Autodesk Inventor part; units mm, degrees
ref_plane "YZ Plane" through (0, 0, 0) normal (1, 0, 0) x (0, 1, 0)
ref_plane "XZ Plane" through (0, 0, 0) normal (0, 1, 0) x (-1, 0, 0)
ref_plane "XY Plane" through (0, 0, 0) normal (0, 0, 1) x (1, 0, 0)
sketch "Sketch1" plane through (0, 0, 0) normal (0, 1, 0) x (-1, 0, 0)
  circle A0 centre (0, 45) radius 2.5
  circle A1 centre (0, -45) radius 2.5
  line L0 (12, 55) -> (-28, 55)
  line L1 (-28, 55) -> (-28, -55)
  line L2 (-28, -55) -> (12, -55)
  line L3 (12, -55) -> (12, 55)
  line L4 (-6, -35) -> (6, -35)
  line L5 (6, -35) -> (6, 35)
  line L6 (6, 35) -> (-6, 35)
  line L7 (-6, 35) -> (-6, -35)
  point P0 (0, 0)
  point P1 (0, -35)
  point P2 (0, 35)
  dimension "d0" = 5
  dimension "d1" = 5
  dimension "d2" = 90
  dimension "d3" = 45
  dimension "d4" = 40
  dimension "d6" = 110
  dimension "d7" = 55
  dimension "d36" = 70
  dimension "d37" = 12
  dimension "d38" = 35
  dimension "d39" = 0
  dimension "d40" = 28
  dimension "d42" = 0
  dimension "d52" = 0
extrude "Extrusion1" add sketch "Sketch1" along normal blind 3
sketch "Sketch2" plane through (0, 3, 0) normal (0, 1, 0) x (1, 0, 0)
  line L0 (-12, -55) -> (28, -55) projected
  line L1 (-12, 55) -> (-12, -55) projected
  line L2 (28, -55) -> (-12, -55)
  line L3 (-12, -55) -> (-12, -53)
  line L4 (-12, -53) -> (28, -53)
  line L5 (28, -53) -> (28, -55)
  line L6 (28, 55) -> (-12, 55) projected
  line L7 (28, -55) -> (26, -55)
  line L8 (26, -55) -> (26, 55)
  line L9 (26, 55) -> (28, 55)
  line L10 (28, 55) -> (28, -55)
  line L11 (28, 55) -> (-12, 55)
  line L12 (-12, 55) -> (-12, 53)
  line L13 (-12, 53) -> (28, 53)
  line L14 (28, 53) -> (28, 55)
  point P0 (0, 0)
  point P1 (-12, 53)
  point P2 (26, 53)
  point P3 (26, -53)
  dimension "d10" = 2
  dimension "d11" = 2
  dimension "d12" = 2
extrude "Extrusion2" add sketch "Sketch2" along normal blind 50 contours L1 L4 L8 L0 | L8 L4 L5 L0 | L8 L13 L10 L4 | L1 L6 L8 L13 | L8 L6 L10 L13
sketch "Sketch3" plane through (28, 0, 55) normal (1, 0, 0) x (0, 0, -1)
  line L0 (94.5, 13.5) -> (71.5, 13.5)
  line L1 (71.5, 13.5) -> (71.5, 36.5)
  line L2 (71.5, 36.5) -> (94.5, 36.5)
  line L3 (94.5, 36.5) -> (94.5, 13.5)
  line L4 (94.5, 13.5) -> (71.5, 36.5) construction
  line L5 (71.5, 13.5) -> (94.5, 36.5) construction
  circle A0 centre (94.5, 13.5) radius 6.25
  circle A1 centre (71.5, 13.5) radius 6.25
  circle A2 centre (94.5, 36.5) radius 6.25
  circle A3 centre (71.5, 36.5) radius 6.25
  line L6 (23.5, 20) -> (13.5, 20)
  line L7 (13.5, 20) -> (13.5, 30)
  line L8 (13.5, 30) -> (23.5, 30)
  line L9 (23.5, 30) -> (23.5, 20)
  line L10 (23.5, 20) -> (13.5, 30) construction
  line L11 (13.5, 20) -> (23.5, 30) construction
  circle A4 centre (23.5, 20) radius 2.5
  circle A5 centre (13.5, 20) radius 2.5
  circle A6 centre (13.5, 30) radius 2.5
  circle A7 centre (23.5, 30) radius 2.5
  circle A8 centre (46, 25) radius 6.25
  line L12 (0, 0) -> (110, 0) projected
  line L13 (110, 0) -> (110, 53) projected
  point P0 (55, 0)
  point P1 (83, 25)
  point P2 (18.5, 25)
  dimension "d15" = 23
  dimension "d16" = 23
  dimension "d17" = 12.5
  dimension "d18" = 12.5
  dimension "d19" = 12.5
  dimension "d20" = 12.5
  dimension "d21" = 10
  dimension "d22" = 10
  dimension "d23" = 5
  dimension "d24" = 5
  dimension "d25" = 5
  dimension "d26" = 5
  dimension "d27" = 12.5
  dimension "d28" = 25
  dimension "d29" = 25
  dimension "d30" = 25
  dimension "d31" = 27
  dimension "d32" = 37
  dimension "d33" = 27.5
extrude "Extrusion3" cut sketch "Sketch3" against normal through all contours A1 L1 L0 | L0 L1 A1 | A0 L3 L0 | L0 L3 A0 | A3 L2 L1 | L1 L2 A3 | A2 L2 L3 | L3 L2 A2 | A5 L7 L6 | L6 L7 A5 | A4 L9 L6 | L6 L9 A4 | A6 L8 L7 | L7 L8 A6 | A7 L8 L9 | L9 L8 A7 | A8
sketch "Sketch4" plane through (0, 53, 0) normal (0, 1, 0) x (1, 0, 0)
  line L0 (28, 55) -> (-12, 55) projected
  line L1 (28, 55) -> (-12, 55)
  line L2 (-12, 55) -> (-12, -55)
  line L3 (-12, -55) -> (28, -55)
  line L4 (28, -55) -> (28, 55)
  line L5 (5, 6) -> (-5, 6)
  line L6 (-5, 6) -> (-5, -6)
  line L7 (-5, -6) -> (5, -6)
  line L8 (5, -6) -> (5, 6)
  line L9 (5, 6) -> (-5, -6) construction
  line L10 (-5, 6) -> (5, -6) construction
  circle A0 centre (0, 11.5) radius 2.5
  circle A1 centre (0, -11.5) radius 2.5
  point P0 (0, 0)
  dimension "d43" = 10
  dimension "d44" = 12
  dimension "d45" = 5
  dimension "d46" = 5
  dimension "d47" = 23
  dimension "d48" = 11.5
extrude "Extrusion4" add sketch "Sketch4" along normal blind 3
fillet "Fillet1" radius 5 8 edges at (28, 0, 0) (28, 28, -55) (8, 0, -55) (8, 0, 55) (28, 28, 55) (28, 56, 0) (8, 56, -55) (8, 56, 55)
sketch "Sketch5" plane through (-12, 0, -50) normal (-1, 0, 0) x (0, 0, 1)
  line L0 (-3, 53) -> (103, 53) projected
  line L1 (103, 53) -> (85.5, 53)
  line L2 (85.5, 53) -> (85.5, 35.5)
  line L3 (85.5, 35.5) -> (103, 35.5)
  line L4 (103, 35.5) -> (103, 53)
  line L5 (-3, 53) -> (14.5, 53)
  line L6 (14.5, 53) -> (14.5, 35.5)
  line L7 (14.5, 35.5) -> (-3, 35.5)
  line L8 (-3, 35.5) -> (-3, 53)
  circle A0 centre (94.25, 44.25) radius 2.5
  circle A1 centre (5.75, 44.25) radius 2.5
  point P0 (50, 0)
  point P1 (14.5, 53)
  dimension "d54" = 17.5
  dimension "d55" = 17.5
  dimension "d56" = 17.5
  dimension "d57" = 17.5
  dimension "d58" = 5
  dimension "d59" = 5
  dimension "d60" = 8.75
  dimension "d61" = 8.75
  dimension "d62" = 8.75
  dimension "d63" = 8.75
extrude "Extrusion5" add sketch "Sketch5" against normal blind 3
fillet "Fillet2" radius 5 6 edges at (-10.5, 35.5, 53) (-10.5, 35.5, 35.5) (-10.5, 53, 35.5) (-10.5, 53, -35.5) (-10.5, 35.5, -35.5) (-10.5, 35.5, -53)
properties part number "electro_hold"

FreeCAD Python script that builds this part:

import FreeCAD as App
import Part
import Sketcher

V = App.Vector


def edges_at(feature, points):
    """Names of the edges that pass closest to the given points."""
    edges = feature.Shape.Edges
    near = lambda p: min(range(len(edges)), key=lambda i: edges[i].distToShape(Part.Vertex(*p))[0])
    return sorted({f"Edge{near(p) + 1}" for p in points})

doc = App.newDocument("Part")
body = doc.addObject("PartDesign::Body", "Body")

# Sketch on XZ plane
sketch1 = body.newObject("Sketcher::SketchObject", "Sketch")
sketch1.AttachmentSupport = (doc.getObject("XZ_Plane"), [""])
sketch1.MapMode = "FlatFace"
sketch1.addGeometry(Part.LineSegment(V(-12, -55, 0), V(-12, 55, 0)), False)
sketch1.addGeometry(Part.LineSegment(V(-12, 55, 0), V(28, 55, 0)), False)
sketch1.addGeometry(Part.LineSegment(V(28, 55, 0), V(28, -55, 0)), False)
sketch1.addGeometry(Part.LineSegment(V(28, -55, 0), V(-12, -55, 0)), False)
sketch1.addGeometry(Part.Circle(V(0, -45, 0), V(0, 0, 1), 2.5), False)
sketch1.addGeometry(Part.LineSegment(V(-6, -35, 0), V(6, -35, 0)), False)
sketch1.addGeometry(Part.LineSegment(V(6, -35, 0), V(6, 35, 0)), False)
sketch1.addGeometry(Part.LineSegment(V(6, 35, 0), V(-6, 35, 0)), False)
sketch1.addGeometry(Part.LineSegment(V(-6, 35, 0), V(-6, -35, 0)), False)
sketch1.addGeometry(Part.Circle(V(0, 45, 0), V(0, 0, 1), 2.5), False)
sketch1.addConstraint(Sketcher.Constraint("Coincident", 0, 2, 1, 1))
sketch1.addConstraint(Sketcher.Constraint("Coincident", 1, 2, 2, 1))
sketch1.addConstraint(Sketcher.Constraint("Coincident", 2, 2, 3, 1))
sketch1.addConstraint(Sketcher.Constraint("Coincident", 3, 2, 0, 1))
sketch1.addConstraint(Sketcher.Constraint("Coincident", 5, 2, 6, 1))
sketch1.addConstraint(Sketcher.Constraint("Coincident", 6, 2, 7, 1))
sketch1.addConstraint(Sketcher.Constraint("Coincident", 7, 2, 8, 1))
sketch1.addConstraint(Sketcher.Constraint("Coincident", 8, 2, 5, 1))
sketch1.addConstraint(Sketcher.Constraint("Vertical", 0))
sketch1.addConstraint(Sketcher.Constraint("Horizontal", 1))
sketch1.addConstraint(Sketcher.Constraint("Vertical", 2))
sketch1.addConstraint(Sketcher.Constraint("Horizontal", 3))
sketch1.addConstraint(Sketcher.Constraint("Horizontal", 5))
sketch1.addConstraint(Sketcher.Constraint("Vertical", 6))
sketch1.addConstraint(Sketcher.Constraint("Horizontal", 7))
sketch1.addConstraint(Sketcher.Constraint("Vertical", 8))
sketch1.addConstraint(Sketcher.Constraint("Equal", 4, 9))
sketch1.addConstraint(Sketcher.Constraint("Symmetric", 4, 3, 9, 3, -1, 1))
sketch1.addConstraint(Sketcher.Constraint("Symmetric", 5, 2, 7, 2, -1, 1))
sketch1.addConstraint(Sketcher.Constraint("PointOnObject", 4, 3, -2))
sketch1.addConstraint(Sketcher.Constraint("Diameter", 4, 5.0))
sketch1.addConstraint(Sketcher.Constraint("DistanceX", 1, 1, 1, 2, 40.0))
sketch1.addConstraint(Sketcher.Constraint("DistanceX", 5, 1, 5, 2, 12.0))
sketch1.addConstraint(Sketcher.Constraint("DistanceY", 0, 1, 0, 2, 110.0))
sketch1.addConstraint(Sketcher.Constraint("DistanceY", 6, 1, 6, 2, 70.0))
sketch1.addConstraint(Sketcher.Constraint("DistanceY", 4, 3, -1, 1, 45.0))
sketch1.addConstraint(Sketcher.Constraint("DistanceX", 0, 2, -1, 1, 12.0))
sketch1.addConstraint(Sketcher.Constraint("DistanceY", -1, 1, 0, 2, 55.0))
pad1 = body.newObject("PartDesign::Pad", "Pad")
pad1.Profile = sketch1
pad1.Length = 3
pad1.Reversed = True

# Sketch on XZ plane
sketch2 = body.newObject("Sketcher::SketchObject", "Sketch001")
sketch2.AttachmentSupport = (doc.getObject("XZ_Plane"), [""])
sketch2.MapMode = "FlatFace"
sketch2.AttachmentOffset = App.Placement(V(0, 0, -3), App.Rotation())
sketch2.addGeometry(Part.LineSegment(V(-12, 53, 0), V(-12, 55, 0)), False)
sketch2.addGeometry(Part.LineSegment(V(-12, 55, 0), V(28, 55, 0)), False)
sketch2.addGeometry(Part.LineSegment(V(28, 55, 0), V(28, -55, 0)), False)
sketch2.addGeometry(Part.LineSegment(V(28, -55, 0), V(-12, -55, 0)), False)
sketch2.addGeometry(Part.LineSegment(V(-12, -55, 0), V(-12, -53, 0)), False)
sketch2.addGeometry(Part.LineSegment(V(-12, -53, 0), V(26, -53, 0)), False)
sketch2.addGeometry(Part.LineSegment(V(26, -53, 0), V(26, 53, 0)), False)
sketch2.addGeometry(Part.LineSegment(V(26, 53, 0), V(-12, 53, 0)), False)
sketch2.addConstraint(Sketcher.Constraint("Coincident", 0, 2, 1, 1))
sketch2.addConstraint(Sketcher.Constraint("Coincident", 1, 2, 2, 1))
sketch2.addConstraint(Sketcher.Constraint("Coincident", 2, 2, 3, 1))
sketch2.addConstraint(Sketcher.Constraint("Coincident", 3, 2, 4, 1))
sketch2.addConstraint(Sketcher.Constraint("Coincident", 4, 2, 5, 1))
sketch2.addConstraint(Sketcher.Constraint("Coincident", 5, 2, 6, 1))
sketch2.addConstraint(Sketcher.Constraint("Coincident", 6, 2, 7, 1))
sketch2.addConstraint(Sketcher.Constraint("Coincident", 7, 2, 0, 1))
sketch2.addConstraint(Sketcher.Constraint("Vertical", 0))
sketch2.addConstraint(Sketcher.Constraint("Horizontal", 1))
sketch2.addConstraint(Sketcher.Constraint("Vertical", 2))
sketch2.addConstraint(Sketcher.Constraint("Horizontal", 3))
sketch2.addConstraint(Sketcher.Constraint("Vertical", 4))
sketch2.addConstraint(Sketcher.Constraint("Horizontal", 5))
sketch2.addConstraint(Sketcher.Constraint("Vertical", 6))
sketch2.addConstraint(Sketcher.Constraint("Horizontal", 7))
sketch2.addConstraint(Sketcher.Constraint("Symmetric", 0, 2, 3, 2, -1))
sketch2.addConstraint(Sketcher.Constraint("Equal", 0, 4))
sketch2.addConstraint(Sketcher.Constraint("DistanceY", 0, 1, 0, 2, 2.0))
sketch2.addConstraint(Sketcher.Constraint("DistanceX", 5, 2, 2, 2, 2.0))
sketch2.addConstraint(Sketcher.Constraint("DistanceX", 1, 1, 1, 2, 40.0))
sketch2.addConstraint(Sketcher.Constraint("DistanceY", 2, 2, 2, 1, 110.0))
sketch2.addConstraint(Sketcher.Constraint("DistanceX", 0, 2, -1, 1, 12.0))
pad2 = body.newObject("PartDesign::Pad", "Pad001")
pad2.Profile = sketch2
pad2.Length = 50
pad2.Reversed = True

# Sketch on YZ plane
sketch3 = body.newObject("Sketcher::SketchObject", "Sketch002")
sketch3.AttachmentSupport = (doc.getObject("YZ_Plane"), [""])
sketch3.MapMode = "FlatFace"
sketch3.AttachmentOffset = App.Placement(V(0, 0, 28), App.Rotation())
sketch3.addGeometry(Part.Circle(V(13.5, -16.5, 0), V(0, 0, 1), 6.2), False)
sketch3.addGeometry(Part.Circle(V(13.5, -39.5, 0), V(0, 0, 1), 6.2), False)
sketch3.addGeometry(Part.Circle(V(36.5, -16.5, 0), V(0, 0, 1), 6.2), False)
sketch3.addGeometry(Part.Circle(V(36.5, -39.5, 0), V(0, 0, 1), 6.2), False)
sketch3.addGeometry(Part.Circle(V(20, 41.5, 0), V(0, 0, 1), 2.5), False)
sketch3.addGeometry(Part.Circle(V(20, 31.5, 0), V(0, 0, 1), 2.5), False)
sketch3.addGeometry(Part.Circle(V(30, 41.5, 0), V(0, 0, 1), 2.5), False)
sketch3.addGeometry(Part.Circle(V(30, 31.5, 0), V(0, 0, 1), 2.5), False)
sketch3.addGeometry(Part.Circle(V(25, 9, 0), V(0, 0, 1), 6.2), False)
sketch3.addConstraint(Sketcher.Constraint("Equal", 0, 1))
sketch3.addConstraint(Sketcher.Constraint("Equal", 1, 2))
sketch3.addConstraint(Sketcher.Constraint("Equal", 2, 3))
sketch3.addConstraint(Sketcher.Constraint("Equal", 4, 5))
sketch3.addConstraint(Sketcher.Constraint("Equal", 5, 6))
sketch3.addConstraint(Sketcher.Constraint("Equal", 6, 7))
sketch3.addConstraint(Sketcher.Constraint("Equal", 3, 8))
sketch3.addConstraint(Sketcher.Constraint("Horizontal", 0, 3, 2, 3))
sketch3.addConstraint(Sketcher.Constraint("Horizontal", 1, 3, 3, 3))
sketch3.addConstraint(Sketcher.Constraint("Horizontal", 4, 3, 6, 3))
sketch3.addConstraint(Sketcher.Constraint("Horizontal", 5, 3, 7, 3))
sketch3.addConstraint(Sketcher.Constraint("Vertical", 0, 3, 1, 3))
sketch3.addConstraint(Sketcher.Constraint("Vertical", 2, 3, 3, 3))
sketch3.addConstraint(Sketcher.Constraint("Vertical", 4, 3, 5, 3))
sketch3.addConstraint(Sketcher.Constraint("Vertical", 6, 3, 7, 3))
sketch3.addConstraint(Sketcher.Constraint("Diameter", 4, 5.0))
sketch3.addConstraint(Sketcher.Constraint("Diameter", 0, 12.5))
sketch3.addConstraint(Sketcher.Constraint("DistanceX", -1, 1, 8, 3, 25.0))
sketch3.addConstraint(Sketcher.Constraint("DistanceY", 1, 3, 0, 3, 23.0))
sketch3.addConstraint(Sketcher.Constraint("DistanceX", 0, 3, 2, 3, 23.0))
sketch3.addConstraint(Sketcher.Constraint("DistanceY", 5, 3, 4, 3, 10.0))
sketch3.addConstraint(Sketcher.Constraint("DistanceX", 4, 3, 6, 3, 10.0))
sketch3.addConstraint(Sketcher.Constraint("DistanceX", 5, 3, 8, 3, 5.0))
sketch3.addConstraint(Sketcher.Constraint("DistanceY", -1, 1, 8, 3, 9.0))
sketch3.addConstraint(Sketcher.Constraint("DistanceY", 0, 3, 4, 3, 58.0))
sketch3.addConstraint(Sketcher.Constraint("DistanceX", -1, 1, 0, 3, 13.5))
sketch3.addConstraint(Sketcher.Constraint("DistanceY", 0, 3, -1, 1, 16.5))
pocket1 = body.newObject("PartDesign::Pocket", "Pocket")
pocket1.Profile = sketch3
pocket1.Type = "ThroughAll"

# Sketch on XZ plane
sketch4 = body.newObject("Sketcher::SketchObject", "Sketch003")
sketch4.AttachmentSupport = (doc.getObject("XZ_Plane"), [""])
sketch4.MapMode = "FlatFace"
sketch4.AttachmentOffset = App.Placement(V(0, 0, -53), App.Rotation())
sketch4.addGeometry(Part.LineSegment(V(28, 55, 0), V(28, -55, 0)), False)
sketch4.addGeometry(Part.LineSegment(V(28, -55, 0), V(-12, -55, 0)), False)
sketch4.addGeometry(Part.LineSegment(V(-12, -55, 0), V(-12, 55, 0)), False)
sketch4.addGeometry(Part.LineSegment(V(-12, 55, 0), V(28, 55, 0)), False)
sketch4.addGeometry(Part.Circle(V(0, 11.5, 0), V(0, 0, 1), 2.5), False)
sketch4.addGeometry(Part.LineSegment(V(-5, -6, 0), V(5, -6, 0)), False)
sketch4.addGeometry(Part.LineSegment(V(5, -6, 0), V(5, 6, 0)), False)
sketch4.addGeometry(Part.LineSegment(V(5, 6, 0), V(-5, 6, 0)), False)
sketch4.addGeometry(Part.LineSegment(V(-5, 6, 0), V(-5, -6, 0)), False)
sketch4.addGeometry(Part.Circle(V(0, -11.5, 0), V(0, 0, 1), 2.5), False)
sketch4.addConstraint(Sketcher.Constraint("Coincident", 0, 2, 1, 1))
sketch4.addConstraint(Sketcher.Constraint("Coincident", 1, 2, 2, 1))
sketch4.addConstraint(Sketcher.Constraint("Coincident", 2, 2, 3, 1))
sketch4.addConstraint(Sketcher.Constraint("Coincident", 3, 2, 0, 1))
sketch4.addConstraint(Sketcher.Constraint("Coincident", 5, 2, 6, 1))
sketch4.addConstraint(Sketcher.Constraint("Coincident", 6, 2, 7, 1))
sketch4.addConstraint(Sketcher.Constraint("Coincident", 7, 2, 8, 1))
sketch4.addConstraint(Sketcher.Constraint("Coincident", 8, 2, 5, 1))
sketch4.addConstraint(Sketcher.Constraint("Vertical", 0))
sketch4.addConstraint(Sketcher.Constraint("Horizontal", 1))
sketch4.addConstraint(Sketcher.Constraint("Vertical", 2))
sketch4.addConstraint(Sketcher.Constraint("Horizontal", 3))
sketch4.addConstraint(Sketcher.Constraint("Horizontal", 5))
sketch4.addConstraint(Sketcher.Constraint("Vertical", 6))
sketch4.addConstraint(Sketcher.Constraint("Horizontal", 7))
sketch4.addConstraint(Sketcher.Constraint("Vertical", 8))
sketch4.addConstraint(Sketcher.Constraint("Equal", 4, 9))
sketch4.addConstraint(Sketcher.Constraint("Symmetric", 4, 3, 9, 3, -1, 1))
sketch4.addConstraint(Sketcher.Constraint("Symmetric", 5, 2, 7, 2, -1, 1))
sketch4.addConstraint(Sketcher.Constraint("PointOnObject", 4, 3, -2))
sketch4.addConstraint(Sketcher.Constraint("Diameter", 4, 5.0))
sketch4.addConstraint(Sketcher.Constraint("DistanceX", 5, 1, 5, 2, 10.0))
sketch4.addConstraint(Sketcher.Constraint("DistanceY", 6, 1, 6, 2, 12.0))
sketch4.addConstraint(Sketcher.Constraint("DistanceX", 1, 2, -1, 1, 12.0))
sketch4.addConstraint(Sketcher.Constraint("DistanceY", 9, 3, 4, 3, 23.0))
sketch4.addConstraint(Sketcher.Constraint("DistanceX", 5, 2, 0, 2, 23.0))
sketch4.addConstraint(Sketcher.Constraint("DistanceY", 0, 2, 0, 1, 110.0))
sketch4.addConstraint(Sketcher.Constraint("DistanceY", 0, 2, -1, 1, 55.0))
pad3 = body.newObject("PartDesign::Pad", "Pad002")
pad3.Profile = sketch4
pad3.Length = 3
pad3.Reversed = True
doc.recompute()

fillet = body.newObject("PartDesign::Fillet", "Fillet")
fillet.Base = (pad3, edges_at(pad3, [
    (28, 0, 0),
    (28, 28, -55),
    (8, 0, -55),
    (8, 0, 55),
    (28, 28, 55),
    (28, 56, 0),
    (8, 56, -55),
    (8, 56, 55),
]))
fillet.Radius = 5

# Sketch on YZ plane
sketch5 = body.newObject("Sketcher::SketchObject", "Sketch004")
sketch5.AttachmentSupport = (doc.getObject("YZ_Plane"), [""])
sketch5.MapMode = "FlatFace"
sketch5.AttachmentOffset = App.Placement(V(0, 0, -12), App.Rotation())
sketch5.addGeometry(Part.LineSegment(V(53, 53, 0), V(53, 35.5, 0)), False)
sketch5.addGeometry(Part.LineSegment(V(53, 35.5, 0), V(35.5, 35.5, 0)), False)
sketch5.addGeometry(Part.LineSegment(V(35.5, 35.5, 0), V(35.5, 53, 0)), False)
sketch5.addGeometry(Part.LineSegment(V(35.5, 53, 0), V(53, 53, 0)), False)
sketch5.addGeometry(Part.Circle(V(44.2, 44.2, 0), V(0, 0, 1), 2.5), False)
sketch5.addGeometry(Part.LineSegment(V(53, -35.5, 0), V(53, -53, 0)), False)
sketch5.addGeometry(Part.LineSegment(V(53, -53, 0), V(35.5, -53, 0)), False)
sketch5.addGeometry(Part.LineSegment(V(35.5, -53, 0), V(35.5, -35.5, 0)), False)
sketch5.addGeometry(Part.LineSegment(V(35.5, -35.5, 0), V(53, -35.5, 0)), False)
sketch5.addGeometry(Part.Circle(V(44.2, -44.2, 0), V(0, 0, 1), 2.5), False)
sketch5.addConstraint(Sketcher.Constraint("Coincident", 0, 2, 1, 1))
sketch5.addConstraint(Sketcher.Constraint("Coincident", 1, 2, 2, 1))
sketch5.addConstraint(Sketcher.Constraint("Coincident", 2, 2, 3, 1))
sketch5.addConstraint(Sketcher.Constraint("Coincident", 3, 2, 0, 1))
sketch5.addConstraint(Sketcher.Constraint("Coincident", 5, 2, 6, 1))
sketch5.addConstraint(Sketcher.Constraint("Coincident", 6, 2, 7, 1))
sketch5.addConstraint(Sketcher.Constraint("Coincident", 7, 2, 8, 1))
sketch5.addConstraint(Sketcher.Constraint("Coincident", 8, 2, 5, 1))
sketch5.addConstraint(Sketcher.Constraint("Vertical", 0))
sketch5.addConstraint(Sketcher.Constraint("Horizontal", 1))
sketch5.addConstraint(Sketcher.Constraint("Vertical", 2))
sketch5.addConstraint(Sketcher.Constraint("Horizontal", 3))
sketch5.addConstraint(Sketcher.Constraint("Vertical", 5))
sketch5.addConstraint(Sketcher.Constraint("Horizontal", 6))
sketch5.addConstraint(Sketcher.Constraint("Vertical", 7))
sketch5.addConstraint(Sketcher.Constraint("Horizontal", 8))
sketch5.addConstraint(Sketcher.Constraint("Equal", 4, 9))
sketch5.addConstraint(Sketcher.Constraint("Symmetric", 4, 3, 9, 3, -1))
sketch5.addConstraint(Sketcher.Constraint("Symmetric", 3, 2, 5, 2, -1))
sketch5.addConstraint(Sketcher.Constraint("Symmetric", 1, 2, 7, 2, -1))
sketch5.addConstraint(Sketcher.Constraint("Equal", 8, 0))
sketch5.addConstraint(Sketcher.Constraint("Diameter", 4, 5.0))
sketch5.addConstraint(Sketcher.Constraint("DistanceX", 1, 2, 1, 1, 17.5))
sketch5.addConstraint(Sketcher.Constraint("DistanceX", 4, 3, 0, 2, 8.75))
sketch5.addConstraint(Sketcher.Constraint("DistanceY", 0, 2, 4, 3, 8.75))
sketch5.addConstraint(Sketcher.Constraint("DistanceX", -1, 1, 0, 2, 53.0))
sketch5.addConstraint(Sketcher.Constraint("DistanceY", -1, 1, 2, 2, 53.0))
pad4 = body.newObject("PartDesign::Pad", "Pad003")
pad4.Profile = sketch5
pad4.Length = 3
doc.recompute()

fillet2 = body.newObject("PartDesign::Fillet", "Fillet001")
fillet2.Base = (pad4, edges_at(pad4, [
    (-10.5, 35.5, 53),
    (-10.5, 35.5, 35.5),
    (-10.5, 53, 35.5),
    (-10.5, 53, -35.5),
    (-10.5, 35.5, -35.5),
    (-10.5, 35.5, -53),
]))
fillet2.Radius = 5

doc.recompute()
